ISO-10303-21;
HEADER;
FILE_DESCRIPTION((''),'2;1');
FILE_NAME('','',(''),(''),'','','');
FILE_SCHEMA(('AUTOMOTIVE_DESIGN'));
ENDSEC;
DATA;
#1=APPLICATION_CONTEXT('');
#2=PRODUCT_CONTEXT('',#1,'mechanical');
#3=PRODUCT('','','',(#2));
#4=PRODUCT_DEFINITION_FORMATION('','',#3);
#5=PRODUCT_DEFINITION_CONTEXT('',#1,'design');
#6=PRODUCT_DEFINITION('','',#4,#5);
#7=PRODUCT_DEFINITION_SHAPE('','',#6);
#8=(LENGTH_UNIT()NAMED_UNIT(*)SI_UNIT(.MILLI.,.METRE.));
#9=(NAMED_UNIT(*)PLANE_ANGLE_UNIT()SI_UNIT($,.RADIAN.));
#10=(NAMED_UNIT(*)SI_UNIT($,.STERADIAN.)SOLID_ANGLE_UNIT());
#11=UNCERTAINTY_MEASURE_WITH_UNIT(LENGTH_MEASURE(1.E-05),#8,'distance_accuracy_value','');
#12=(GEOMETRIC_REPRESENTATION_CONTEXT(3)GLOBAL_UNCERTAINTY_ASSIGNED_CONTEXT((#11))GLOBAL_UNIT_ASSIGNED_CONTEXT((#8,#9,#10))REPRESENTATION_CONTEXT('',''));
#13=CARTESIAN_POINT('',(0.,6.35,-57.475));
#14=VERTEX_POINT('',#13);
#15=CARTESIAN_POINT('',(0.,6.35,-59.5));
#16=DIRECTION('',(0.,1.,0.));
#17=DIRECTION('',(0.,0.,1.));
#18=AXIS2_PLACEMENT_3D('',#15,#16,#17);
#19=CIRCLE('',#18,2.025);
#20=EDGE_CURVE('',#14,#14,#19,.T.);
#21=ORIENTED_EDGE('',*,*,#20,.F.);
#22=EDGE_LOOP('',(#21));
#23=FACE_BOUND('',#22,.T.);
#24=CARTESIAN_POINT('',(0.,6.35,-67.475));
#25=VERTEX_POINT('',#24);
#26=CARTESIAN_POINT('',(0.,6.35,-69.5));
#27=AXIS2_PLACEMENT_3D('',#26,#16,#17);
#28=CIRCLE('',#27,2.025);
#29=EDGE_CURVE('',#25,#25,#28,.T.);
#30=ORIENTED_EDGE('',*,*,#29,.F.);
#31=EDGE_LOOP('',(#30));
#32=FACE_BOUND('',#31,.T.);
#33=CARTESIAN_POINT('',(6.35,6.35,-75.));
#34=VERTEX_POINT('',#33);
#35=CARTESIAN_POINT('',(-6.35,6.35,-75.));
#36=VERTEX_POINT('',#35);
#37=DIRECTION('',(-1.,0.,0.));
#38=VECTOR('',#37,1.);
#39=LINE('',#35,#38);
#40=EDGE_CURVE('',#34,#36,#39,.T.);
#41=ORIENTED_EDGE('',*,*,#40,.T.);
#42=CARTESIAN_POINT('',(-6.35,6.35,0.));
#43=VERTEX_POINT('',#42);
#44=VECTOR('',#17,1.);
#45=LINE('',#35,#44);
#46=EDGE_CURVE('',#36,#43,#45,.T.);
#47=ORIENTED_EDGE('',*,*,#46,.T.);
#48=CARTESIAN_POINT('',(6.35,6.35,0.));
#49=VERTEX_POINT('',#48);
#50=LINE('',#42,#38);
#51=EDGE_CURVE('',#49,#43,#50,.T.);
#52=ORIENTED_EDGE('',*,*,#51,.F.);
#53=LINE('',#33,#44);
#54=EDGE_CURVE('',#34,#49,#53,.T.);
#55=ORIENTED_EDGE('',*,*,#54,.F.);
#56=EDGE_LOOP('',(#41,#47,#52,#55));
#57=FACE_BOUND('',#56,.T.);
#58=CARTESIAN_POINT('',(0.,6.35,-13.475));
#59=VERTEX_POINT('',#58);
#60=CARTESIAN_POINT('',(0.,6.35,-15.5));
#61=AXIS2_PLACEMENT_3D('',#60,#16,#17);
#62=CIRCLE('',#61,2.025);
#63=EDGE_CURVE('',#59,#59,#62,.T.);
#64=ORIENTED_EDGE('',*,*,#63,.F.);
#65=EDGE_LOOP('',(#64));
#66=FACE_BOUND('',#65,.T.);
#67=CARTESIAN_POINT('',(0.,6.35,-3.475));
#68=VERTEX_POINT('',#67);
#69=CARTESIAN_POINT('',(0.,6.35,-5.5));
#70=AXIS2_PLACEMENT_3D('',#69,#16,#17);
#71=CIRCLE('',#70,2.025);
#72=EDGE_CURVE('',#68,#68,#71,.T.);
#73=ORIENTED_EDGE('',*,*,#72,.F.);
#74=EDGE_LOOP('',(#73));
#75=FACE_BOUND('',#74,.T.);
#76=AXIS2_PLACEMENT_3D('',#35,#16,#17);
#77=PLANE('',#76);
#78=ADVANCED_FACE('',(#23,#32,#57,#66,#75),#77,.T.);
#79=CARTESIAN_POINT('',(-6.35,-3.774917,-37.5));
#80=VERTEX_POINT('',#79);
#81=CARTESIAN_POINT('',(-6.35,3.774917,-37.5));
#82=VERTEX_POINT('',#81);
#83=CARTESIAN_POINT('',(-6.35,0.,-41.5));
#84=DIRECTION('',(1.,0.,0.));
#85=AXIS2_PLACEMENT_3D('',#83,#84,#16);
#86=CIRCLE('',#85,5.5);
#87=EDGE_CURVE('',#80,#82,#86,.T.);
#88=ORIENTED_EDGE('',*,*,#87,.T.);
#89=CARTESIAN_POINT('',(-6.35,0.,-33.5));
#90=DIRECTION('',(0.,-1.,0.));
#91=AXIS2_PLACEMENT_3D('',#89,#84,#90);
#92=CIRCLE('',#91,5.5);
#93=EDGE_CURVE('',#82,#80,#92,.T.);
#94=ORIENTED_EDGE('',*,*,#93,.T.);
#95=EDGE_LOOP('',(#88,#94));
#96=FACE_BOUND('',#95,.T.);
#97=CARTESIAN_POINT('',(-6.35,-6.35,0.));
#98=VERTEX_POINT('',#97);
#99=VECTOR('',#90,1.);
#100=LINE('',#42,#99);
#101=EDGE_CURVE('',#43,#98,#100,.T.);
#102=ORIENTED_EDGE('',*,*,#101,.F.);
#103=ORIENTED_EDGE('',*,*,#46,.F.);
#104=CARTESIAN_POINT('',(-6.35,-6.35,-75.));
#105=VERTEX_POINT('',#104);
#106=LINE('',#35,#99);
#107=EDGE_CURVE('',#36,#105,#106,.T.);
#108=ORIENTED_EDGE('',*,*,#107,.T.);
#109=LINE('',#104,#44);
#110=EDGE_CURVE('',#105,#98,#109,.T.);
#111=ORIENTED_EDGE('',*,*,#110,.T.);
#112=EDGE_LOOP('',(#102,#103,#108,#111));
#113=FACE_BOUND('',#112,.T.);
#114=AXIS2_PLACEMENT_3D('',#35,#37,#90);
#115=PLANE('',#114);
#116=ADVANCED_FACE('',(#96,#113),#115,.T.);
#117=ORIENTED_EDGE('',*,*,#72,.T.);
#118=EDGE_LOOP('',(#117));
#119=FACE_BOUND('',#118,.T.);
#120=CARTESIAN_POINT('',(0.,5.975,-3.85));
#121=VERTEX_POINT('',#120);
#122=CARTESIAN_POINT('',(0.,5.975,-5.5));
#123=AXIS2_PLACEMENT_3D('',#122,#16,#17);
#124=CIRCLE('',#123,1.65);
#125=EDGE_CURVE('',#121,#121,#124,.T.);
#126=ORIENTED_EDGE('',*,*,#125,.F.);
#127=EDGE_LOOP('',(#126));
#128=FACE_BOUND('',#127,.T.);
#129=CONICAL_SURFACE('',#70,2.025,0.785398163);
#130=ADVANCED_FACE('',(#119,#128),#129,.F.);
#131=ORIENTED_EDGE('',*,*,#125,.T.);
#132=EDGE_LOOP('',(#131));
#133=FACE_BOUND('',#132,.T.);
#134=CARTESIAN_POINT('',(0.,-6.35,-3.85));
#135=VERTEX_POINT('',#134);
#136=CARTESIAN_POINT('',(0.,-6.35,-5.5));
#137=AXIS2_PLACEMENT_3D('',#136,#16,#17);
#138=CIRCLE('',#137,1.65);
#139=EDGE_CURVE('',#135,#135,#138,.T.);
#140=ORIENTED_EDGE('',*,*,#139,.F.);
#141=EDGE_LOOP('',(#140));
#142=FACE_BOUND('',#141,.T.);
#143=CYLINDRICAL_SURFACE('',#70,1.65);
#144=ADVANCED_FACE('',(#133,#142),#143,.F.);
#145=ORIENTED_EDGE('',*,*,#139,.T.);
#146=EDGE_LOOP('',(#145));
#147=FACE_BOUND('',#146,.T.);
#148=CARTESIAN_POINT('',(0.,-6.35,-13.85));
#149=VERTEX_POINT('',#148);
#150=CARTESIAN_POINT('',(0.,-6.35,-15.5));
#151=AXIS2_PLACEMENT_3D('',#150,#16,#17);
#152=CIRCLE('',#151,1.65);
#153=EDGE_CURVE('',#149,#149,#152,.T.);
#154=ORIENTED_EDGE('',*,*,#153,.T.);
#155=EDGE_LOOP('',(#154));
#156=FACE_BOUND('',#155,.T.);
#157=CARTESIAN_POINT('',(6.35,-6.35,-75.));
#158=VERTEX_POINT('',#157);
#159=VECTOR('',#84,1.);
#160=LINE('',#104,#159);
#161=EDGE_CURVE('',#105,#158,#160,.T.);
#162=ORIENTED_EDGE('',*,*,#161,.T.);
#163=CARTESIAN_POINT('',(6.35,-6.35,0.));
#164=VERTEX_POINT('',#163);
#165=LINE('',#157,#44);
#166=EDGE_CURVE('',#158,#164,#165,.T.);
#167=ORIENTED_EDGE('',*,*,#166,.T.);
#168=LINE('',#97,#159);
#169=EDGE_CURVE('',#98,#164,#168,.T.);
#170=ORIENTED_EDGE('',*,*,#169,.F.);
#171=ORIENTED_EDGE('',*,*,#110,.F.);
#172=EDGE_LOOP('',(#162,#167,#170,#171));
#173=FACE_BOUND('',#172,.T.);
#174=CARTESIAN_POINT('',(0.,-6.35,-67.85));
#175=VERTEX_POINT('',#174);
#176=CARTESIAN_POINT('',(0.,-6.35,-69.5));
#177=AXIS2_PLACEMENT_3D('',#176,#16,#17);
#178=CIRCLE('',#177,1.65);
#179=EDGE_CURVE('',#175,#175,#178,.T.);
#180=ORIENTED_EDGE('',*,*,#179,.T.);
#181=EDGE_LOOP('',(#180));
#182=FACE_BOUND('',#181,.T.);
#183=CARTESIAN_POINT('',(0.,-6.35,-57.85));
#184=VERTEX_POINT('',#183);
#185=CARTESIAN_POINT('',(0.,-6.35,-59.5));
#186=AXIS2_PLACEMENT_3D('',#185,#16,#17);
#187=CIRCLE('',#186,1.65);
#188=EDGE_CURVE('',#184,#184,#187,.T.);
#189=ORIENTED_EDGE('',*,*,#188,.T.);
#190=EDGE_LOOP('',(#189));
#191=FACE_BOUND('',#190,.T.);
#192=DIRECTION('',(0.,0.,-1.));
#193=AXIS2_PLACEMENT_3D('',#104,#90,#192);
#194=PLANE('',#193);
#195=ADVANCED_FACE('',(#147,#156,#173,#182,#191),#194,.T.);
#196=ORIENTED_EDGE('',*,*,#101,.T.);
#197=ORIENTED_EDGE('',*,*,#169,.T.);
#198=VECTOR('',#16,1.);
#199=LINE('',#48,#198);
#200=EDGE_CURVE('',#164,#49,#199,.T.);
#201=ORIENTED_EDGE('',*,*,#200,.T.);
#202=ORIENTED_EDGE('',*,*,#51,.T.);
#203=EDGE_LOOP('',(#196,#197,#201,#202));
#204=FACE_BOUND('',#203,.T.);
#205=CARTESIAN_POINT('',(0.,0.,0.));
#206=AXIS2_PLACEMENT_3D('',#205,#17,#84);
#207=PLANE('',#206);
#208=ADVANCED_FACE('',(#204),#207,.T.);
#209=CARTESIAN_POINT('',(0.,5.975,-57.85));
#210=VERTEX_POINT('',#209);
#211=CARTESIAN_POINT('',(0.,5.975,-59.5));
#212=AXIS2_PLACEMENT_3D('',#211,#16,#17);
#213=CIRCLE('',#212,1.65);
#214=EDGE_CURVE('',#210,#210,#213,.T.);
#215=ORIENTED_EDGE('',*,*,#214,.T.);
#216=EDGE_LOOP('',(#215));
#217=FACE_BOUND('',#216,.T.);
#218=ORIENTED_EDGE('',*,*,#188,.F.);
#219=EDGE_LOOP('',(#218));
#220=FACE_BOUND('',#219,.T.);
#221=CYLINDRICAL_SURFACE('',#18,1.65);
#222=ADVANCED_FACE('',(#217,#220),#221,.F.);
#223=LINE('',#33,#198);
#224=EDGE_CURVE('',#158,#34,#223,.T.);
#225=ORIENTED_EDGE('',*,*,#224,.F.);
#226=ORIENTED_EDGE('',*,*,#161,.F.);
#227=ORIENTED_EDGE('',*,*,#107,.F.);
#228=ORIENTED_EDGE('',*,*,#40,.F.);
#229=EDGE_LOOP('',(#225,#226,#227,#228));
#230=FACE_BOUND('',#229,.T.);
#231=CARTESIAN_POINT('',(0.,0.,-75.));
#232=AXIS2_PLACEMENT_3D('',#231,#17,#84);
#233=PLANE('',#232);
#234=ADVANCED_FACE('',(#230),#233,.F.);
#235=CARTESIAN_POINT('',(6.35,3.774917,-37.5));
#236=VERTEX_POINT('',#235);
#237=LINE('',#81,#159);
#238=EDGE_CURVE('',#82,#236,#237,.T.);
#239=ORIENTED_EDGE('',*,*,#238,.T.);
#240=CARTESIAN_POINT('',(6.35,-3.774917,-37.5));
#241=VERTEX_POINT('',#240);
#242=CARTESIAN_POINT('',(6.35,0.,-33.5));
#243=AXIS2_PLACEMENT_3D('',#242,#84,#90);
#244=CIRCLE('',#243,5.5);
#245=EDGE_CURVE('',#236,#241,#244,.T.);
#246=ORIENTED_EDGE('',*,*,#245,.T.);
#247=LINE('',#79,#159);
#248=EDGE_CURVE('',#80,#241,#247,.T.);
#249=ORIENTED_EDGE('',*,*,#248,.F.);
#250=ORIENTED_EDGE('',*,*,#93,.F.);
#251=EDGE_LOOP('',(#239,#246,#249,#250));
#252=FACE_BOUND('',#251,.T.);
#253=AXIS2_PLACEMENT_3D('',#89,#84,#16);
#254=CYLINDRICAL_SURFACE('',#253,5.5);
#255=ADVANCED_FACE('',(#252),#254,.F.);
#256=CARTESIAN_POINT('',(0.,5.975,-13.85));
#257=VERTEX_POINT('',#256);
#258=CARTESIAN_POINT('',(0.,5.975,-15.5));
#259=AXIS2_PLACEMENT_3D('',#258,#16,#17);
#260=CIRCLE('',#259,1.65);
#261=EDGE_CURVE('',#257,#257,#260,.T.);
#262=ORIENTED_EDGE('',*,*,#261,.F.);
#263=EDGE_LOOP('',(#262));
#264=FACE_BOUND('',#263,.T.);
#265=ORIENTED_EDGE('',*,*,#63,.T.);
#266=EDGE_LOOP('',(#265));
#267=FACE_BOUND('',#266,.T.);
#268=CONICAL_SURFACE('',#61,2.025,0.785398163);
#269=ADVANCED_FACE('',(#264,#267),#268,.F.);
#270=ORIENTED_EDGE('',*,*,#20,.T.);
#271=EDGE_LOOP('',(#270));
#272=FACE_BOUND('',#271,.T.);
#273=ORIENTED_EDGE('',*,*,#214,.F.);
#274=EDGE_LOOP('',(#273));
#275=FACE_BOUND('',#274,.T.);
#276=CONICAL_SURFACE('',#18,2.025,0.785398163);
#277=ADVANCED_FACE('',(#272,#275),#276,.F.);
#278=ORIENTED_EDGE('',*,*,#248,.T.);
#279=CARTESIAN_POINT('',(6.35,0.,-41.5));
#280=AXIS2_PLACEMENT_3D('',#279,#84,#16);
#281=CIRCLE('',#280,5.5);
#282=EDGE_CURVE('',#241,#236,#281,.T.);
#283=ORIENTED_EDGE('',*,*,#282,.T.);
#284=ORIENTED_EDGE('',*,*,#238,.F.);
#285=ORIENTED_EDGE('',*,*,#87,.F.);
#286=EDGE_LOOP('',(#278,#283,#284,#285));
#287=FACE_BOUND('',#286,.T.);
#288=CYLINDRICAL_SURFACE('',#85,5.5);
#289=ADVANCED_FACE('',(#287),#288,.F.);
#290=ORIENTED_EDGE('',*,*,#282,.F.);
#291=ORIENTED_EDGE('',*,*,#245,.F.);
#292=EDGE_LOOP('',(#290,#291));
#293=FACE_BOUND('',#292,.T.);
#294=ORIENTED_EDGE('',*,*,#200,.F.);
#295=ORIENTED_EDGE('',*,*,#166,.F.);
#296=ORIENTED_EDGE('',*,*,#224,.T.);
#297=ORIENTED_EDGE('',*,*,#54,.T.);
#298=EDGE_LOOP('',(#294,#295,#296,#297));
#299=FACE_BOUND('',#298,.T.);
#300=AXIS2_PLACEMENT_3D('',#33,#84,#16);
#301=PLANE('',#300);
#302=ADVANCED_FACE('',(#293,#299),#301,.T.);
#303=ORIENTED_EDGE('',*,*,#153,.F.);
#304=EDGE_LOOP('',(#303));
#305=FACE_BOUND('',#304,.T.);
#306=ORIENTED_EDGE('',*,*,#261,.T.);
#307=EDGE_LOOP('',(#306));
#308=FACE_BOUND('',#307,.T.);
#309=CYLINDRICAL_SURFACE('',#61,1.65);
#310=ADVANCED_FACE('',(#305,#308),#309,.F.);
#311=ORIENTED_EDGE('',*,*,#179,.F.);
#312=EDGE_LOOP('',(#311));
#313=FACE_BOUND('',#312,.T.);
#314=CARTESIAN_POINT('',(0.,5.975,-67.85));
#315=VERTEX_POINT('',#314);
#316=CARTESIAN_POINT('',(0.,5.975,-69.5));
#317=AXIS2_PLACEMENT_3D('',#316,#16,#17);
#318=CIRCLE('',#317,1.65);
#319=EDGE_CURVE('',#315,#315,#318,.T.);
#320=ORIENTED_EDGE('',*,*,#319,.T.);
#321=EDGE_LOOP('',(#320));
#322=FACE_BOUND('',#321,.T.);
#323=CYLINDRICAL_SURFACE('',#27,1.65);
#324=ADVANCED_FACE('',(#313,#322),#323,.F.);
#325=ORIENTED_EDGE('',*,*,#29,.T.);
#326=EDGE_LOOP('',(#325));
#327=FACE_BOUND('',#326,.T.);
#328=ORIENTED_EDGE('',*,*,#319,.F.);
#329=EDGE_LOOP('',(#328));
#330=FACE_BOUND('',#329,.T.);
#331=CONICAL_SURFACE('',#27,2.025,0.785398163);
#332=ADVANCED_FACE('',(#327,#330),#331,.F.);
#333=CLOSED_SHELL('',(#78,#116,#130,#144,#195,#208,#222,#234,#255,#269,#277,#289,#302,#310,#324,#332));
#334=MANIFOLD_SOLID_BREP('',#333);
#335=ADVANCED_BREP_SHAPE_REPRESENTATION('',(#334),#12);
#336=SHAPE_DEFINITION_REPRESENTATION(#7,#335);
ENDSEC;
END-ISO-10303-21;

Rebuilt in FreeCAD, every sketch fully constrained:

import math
import FreeCAD as App
import Part
import Sketcher
from FreeCAD import Vector
Q = App.Units.Quantity


def add_polygon(sketch, points):
    """Adds a closed chain of lines whose ends are joined by coincident constraints."""
    first, n = sketch.GeometryCount, len(points)
    for a, b in zip(points, points[1:] + points[:1]):
        sketch.addGeometry(Part.LineSegment(App.Vector(*a, 0), App.Vector(*b, 0)), False)
    for i in range(n):
        sketch.addConstraint(Sketcher.Constraint("Coincident", first + i, 2, first + (i + 1) % n, 1))

doc = App.newDocument("Part")
body = doc.addObject("PartDesign::Body", "Body")

sketch1 = body.newObject("Sketcher::SketchObject", "Sketch")
sketch1.AttachmentSupport = (doc.getObject("XY_Plane"), [""])
sketch1.MapMode = "FlatFace"
add_polygon(sketch1, [(-6, 6), (-6, -6), (6, -6), (6, 6)])
sketch1.addConstraint(Sketcher.Constraint("Vertical", 0))
sketch1.addConstraint(Sketcher.Constraint("Horizontal", 1))
sketch1.addConstraint(Sketcher.Constraint("Vertical", 2))
sketch1.addConstraint(Sketcher.Constraint("Horizontal", 3))
sketch1.addConstraint(Sketcher.Constraint("Symmetric", 0, 2, 2, 2, -1, 1))
sketch1.addConstraint(Sketcher.Constraint("Equal", 3, 0))
sketch1.addConstraint(Sketcher.Constraint("DistanceX", 1, 1, 1, 2, Q("12.7 mm")))
pad1 = body.newObject("PartDesign::Pad", "Pad")
pad1.Profile = sketch1
pad1.Length = 75
pad1.Reversed = True

sketch2 = body.newObject("Sketcher::SketchObject", "Sketch001")
sketch2.AttachmentSupport = (doc.getObject("YZ_Plane"), [""])
sketch2.MapMode = "FlatFace"
sketch2.AttachmentOffset = App.Placement(Vector(0, 0, 6.35), App.Rotation())
sketch2.addGeometry(Part.ArcOfCircle(Part.Circle(Vector(0, -42, 0), Vector(0, 0, 1), 6), math.radians(133), math.radians(407)), False)
sketch2.addGeometry(Part.ArcOfCircle(Part.Circle(Vector(0, -34, 0), Vector(0, 0, 1), 6), math.radians(-47), math.radians(227)), False)
sketch2.addConstraint(Sketcher.Constraint("Coincident", 0, 1, 1, 2))
sketch2.addConstraint(Sketcher.Constraint("Coincident", 1, 1, 0, 2))
sketch2.addConstraint(Sketcher.Constraint("Equal", 0, 1))
sketch2.addConstraint(Sketcher.Constraint("Symmetric", 0, 1, 1, 1, -2))
sketch2.addConstraint(Sketcher.Constraint("Radius", 0, Q("5.5 mm")))
sketch2.addConstraint(Sketcher.Constraint("DistanceY", 0, 3, 1, 3, Q("8 mm")))
sketch2.addConstraint(Sketcher.Constraint("DistanceY", 0, 3, -1, 1, Q("41.5 mm")))
pocket1 = body.newObject("PartDesign::Pocket", "Pocket")
pocket1.Profile = sketch2
pocket1.Type = "ThroughAll"

sketch3 = body.newObject("Sketcher::SketchObject", "Sketch002")
sketch3.AttachmentSupport = (doc.getObject("XZ_Plane"), [""])
sketch3.MapMode = "FlatFace"
sketch3.AttachmentOffset = App.Placement(Vector(0, 0, -6.35), App.Rotation())
sketch3.addGeometry(Part.Circle(Vector(0, -5.5, 0), Vector(0, 0, 1), 1.6), False)
sketch3.addGeometry(Part.Circle(Vector(0, -15.5, 0), Vector(0, 0, 1), 1.6), False)
sketch3.addGeometry(Part.Circle(Vector(0, -59.5, 0), Vector(0, 0, 1), 1.6), False)
sketch3.addGeometry(Part.Circle(Vector(0, -69.5, 0), Vector(0, 0, 1), 1.6), False)
sketch3.addConstraint(Sketcher.Constraint("Equal", 0, 1))
sketch3.addConstraint(Sketcher.Constraint("Equal", 1, 2))
sketch3.addConstraint(Sketcher.Constraint("Equal", 2, 3))
sketch3.addConstraint(Sketcher.Constraint("PointOnObject", 0, 3, -2))
sketch3.addConstraint(Sketcher.Constraint("PointOnObject", 1, 3, -2))
sketch3.addConstraint(Sketcher.Constraint("PointOnObject", 2, 3, -2))
sketch3.addConstraint(Sketcher.Constraint("PointOnObject", 3, 3, -2))
sketch3.addConstraint(Sketcher.Constraint("Diameter", 0, Q("3.3 mm")))
sketch3.addConstraint(Sketcher.Constraint("DistanceY", 1, 3, 0, 3, Q("10 mm")))
sketch3.addConstraint(Sketcher.Constraint("DistanceY", 2, 3, 1, 3, Q("44 mm")))
sketch3.addConstraint(Sketcher.Constraint("DistanceY", 3, 3, 2, 3, Q("10 mm")))
sketch3.addConstraint(Sketcher.Constraint("DistanceY", 0, 3, -1, 1, Q("5.5 mm")))
doc.recompute()
hole = body.newObject("PartDesign::Hole", "Hole")
hole.Profile = sketch3
hole.ThreadType = "None"
hole.Diameter = 3.3
hole.DepthType = "ThroughAll"
hole.HoleCutType = "Countersink"
hole.HoleCutDiameter = 4.05
hole.HoleCutCountersinkAngle = 90
hole.Reversed = True

doc.recompute()
